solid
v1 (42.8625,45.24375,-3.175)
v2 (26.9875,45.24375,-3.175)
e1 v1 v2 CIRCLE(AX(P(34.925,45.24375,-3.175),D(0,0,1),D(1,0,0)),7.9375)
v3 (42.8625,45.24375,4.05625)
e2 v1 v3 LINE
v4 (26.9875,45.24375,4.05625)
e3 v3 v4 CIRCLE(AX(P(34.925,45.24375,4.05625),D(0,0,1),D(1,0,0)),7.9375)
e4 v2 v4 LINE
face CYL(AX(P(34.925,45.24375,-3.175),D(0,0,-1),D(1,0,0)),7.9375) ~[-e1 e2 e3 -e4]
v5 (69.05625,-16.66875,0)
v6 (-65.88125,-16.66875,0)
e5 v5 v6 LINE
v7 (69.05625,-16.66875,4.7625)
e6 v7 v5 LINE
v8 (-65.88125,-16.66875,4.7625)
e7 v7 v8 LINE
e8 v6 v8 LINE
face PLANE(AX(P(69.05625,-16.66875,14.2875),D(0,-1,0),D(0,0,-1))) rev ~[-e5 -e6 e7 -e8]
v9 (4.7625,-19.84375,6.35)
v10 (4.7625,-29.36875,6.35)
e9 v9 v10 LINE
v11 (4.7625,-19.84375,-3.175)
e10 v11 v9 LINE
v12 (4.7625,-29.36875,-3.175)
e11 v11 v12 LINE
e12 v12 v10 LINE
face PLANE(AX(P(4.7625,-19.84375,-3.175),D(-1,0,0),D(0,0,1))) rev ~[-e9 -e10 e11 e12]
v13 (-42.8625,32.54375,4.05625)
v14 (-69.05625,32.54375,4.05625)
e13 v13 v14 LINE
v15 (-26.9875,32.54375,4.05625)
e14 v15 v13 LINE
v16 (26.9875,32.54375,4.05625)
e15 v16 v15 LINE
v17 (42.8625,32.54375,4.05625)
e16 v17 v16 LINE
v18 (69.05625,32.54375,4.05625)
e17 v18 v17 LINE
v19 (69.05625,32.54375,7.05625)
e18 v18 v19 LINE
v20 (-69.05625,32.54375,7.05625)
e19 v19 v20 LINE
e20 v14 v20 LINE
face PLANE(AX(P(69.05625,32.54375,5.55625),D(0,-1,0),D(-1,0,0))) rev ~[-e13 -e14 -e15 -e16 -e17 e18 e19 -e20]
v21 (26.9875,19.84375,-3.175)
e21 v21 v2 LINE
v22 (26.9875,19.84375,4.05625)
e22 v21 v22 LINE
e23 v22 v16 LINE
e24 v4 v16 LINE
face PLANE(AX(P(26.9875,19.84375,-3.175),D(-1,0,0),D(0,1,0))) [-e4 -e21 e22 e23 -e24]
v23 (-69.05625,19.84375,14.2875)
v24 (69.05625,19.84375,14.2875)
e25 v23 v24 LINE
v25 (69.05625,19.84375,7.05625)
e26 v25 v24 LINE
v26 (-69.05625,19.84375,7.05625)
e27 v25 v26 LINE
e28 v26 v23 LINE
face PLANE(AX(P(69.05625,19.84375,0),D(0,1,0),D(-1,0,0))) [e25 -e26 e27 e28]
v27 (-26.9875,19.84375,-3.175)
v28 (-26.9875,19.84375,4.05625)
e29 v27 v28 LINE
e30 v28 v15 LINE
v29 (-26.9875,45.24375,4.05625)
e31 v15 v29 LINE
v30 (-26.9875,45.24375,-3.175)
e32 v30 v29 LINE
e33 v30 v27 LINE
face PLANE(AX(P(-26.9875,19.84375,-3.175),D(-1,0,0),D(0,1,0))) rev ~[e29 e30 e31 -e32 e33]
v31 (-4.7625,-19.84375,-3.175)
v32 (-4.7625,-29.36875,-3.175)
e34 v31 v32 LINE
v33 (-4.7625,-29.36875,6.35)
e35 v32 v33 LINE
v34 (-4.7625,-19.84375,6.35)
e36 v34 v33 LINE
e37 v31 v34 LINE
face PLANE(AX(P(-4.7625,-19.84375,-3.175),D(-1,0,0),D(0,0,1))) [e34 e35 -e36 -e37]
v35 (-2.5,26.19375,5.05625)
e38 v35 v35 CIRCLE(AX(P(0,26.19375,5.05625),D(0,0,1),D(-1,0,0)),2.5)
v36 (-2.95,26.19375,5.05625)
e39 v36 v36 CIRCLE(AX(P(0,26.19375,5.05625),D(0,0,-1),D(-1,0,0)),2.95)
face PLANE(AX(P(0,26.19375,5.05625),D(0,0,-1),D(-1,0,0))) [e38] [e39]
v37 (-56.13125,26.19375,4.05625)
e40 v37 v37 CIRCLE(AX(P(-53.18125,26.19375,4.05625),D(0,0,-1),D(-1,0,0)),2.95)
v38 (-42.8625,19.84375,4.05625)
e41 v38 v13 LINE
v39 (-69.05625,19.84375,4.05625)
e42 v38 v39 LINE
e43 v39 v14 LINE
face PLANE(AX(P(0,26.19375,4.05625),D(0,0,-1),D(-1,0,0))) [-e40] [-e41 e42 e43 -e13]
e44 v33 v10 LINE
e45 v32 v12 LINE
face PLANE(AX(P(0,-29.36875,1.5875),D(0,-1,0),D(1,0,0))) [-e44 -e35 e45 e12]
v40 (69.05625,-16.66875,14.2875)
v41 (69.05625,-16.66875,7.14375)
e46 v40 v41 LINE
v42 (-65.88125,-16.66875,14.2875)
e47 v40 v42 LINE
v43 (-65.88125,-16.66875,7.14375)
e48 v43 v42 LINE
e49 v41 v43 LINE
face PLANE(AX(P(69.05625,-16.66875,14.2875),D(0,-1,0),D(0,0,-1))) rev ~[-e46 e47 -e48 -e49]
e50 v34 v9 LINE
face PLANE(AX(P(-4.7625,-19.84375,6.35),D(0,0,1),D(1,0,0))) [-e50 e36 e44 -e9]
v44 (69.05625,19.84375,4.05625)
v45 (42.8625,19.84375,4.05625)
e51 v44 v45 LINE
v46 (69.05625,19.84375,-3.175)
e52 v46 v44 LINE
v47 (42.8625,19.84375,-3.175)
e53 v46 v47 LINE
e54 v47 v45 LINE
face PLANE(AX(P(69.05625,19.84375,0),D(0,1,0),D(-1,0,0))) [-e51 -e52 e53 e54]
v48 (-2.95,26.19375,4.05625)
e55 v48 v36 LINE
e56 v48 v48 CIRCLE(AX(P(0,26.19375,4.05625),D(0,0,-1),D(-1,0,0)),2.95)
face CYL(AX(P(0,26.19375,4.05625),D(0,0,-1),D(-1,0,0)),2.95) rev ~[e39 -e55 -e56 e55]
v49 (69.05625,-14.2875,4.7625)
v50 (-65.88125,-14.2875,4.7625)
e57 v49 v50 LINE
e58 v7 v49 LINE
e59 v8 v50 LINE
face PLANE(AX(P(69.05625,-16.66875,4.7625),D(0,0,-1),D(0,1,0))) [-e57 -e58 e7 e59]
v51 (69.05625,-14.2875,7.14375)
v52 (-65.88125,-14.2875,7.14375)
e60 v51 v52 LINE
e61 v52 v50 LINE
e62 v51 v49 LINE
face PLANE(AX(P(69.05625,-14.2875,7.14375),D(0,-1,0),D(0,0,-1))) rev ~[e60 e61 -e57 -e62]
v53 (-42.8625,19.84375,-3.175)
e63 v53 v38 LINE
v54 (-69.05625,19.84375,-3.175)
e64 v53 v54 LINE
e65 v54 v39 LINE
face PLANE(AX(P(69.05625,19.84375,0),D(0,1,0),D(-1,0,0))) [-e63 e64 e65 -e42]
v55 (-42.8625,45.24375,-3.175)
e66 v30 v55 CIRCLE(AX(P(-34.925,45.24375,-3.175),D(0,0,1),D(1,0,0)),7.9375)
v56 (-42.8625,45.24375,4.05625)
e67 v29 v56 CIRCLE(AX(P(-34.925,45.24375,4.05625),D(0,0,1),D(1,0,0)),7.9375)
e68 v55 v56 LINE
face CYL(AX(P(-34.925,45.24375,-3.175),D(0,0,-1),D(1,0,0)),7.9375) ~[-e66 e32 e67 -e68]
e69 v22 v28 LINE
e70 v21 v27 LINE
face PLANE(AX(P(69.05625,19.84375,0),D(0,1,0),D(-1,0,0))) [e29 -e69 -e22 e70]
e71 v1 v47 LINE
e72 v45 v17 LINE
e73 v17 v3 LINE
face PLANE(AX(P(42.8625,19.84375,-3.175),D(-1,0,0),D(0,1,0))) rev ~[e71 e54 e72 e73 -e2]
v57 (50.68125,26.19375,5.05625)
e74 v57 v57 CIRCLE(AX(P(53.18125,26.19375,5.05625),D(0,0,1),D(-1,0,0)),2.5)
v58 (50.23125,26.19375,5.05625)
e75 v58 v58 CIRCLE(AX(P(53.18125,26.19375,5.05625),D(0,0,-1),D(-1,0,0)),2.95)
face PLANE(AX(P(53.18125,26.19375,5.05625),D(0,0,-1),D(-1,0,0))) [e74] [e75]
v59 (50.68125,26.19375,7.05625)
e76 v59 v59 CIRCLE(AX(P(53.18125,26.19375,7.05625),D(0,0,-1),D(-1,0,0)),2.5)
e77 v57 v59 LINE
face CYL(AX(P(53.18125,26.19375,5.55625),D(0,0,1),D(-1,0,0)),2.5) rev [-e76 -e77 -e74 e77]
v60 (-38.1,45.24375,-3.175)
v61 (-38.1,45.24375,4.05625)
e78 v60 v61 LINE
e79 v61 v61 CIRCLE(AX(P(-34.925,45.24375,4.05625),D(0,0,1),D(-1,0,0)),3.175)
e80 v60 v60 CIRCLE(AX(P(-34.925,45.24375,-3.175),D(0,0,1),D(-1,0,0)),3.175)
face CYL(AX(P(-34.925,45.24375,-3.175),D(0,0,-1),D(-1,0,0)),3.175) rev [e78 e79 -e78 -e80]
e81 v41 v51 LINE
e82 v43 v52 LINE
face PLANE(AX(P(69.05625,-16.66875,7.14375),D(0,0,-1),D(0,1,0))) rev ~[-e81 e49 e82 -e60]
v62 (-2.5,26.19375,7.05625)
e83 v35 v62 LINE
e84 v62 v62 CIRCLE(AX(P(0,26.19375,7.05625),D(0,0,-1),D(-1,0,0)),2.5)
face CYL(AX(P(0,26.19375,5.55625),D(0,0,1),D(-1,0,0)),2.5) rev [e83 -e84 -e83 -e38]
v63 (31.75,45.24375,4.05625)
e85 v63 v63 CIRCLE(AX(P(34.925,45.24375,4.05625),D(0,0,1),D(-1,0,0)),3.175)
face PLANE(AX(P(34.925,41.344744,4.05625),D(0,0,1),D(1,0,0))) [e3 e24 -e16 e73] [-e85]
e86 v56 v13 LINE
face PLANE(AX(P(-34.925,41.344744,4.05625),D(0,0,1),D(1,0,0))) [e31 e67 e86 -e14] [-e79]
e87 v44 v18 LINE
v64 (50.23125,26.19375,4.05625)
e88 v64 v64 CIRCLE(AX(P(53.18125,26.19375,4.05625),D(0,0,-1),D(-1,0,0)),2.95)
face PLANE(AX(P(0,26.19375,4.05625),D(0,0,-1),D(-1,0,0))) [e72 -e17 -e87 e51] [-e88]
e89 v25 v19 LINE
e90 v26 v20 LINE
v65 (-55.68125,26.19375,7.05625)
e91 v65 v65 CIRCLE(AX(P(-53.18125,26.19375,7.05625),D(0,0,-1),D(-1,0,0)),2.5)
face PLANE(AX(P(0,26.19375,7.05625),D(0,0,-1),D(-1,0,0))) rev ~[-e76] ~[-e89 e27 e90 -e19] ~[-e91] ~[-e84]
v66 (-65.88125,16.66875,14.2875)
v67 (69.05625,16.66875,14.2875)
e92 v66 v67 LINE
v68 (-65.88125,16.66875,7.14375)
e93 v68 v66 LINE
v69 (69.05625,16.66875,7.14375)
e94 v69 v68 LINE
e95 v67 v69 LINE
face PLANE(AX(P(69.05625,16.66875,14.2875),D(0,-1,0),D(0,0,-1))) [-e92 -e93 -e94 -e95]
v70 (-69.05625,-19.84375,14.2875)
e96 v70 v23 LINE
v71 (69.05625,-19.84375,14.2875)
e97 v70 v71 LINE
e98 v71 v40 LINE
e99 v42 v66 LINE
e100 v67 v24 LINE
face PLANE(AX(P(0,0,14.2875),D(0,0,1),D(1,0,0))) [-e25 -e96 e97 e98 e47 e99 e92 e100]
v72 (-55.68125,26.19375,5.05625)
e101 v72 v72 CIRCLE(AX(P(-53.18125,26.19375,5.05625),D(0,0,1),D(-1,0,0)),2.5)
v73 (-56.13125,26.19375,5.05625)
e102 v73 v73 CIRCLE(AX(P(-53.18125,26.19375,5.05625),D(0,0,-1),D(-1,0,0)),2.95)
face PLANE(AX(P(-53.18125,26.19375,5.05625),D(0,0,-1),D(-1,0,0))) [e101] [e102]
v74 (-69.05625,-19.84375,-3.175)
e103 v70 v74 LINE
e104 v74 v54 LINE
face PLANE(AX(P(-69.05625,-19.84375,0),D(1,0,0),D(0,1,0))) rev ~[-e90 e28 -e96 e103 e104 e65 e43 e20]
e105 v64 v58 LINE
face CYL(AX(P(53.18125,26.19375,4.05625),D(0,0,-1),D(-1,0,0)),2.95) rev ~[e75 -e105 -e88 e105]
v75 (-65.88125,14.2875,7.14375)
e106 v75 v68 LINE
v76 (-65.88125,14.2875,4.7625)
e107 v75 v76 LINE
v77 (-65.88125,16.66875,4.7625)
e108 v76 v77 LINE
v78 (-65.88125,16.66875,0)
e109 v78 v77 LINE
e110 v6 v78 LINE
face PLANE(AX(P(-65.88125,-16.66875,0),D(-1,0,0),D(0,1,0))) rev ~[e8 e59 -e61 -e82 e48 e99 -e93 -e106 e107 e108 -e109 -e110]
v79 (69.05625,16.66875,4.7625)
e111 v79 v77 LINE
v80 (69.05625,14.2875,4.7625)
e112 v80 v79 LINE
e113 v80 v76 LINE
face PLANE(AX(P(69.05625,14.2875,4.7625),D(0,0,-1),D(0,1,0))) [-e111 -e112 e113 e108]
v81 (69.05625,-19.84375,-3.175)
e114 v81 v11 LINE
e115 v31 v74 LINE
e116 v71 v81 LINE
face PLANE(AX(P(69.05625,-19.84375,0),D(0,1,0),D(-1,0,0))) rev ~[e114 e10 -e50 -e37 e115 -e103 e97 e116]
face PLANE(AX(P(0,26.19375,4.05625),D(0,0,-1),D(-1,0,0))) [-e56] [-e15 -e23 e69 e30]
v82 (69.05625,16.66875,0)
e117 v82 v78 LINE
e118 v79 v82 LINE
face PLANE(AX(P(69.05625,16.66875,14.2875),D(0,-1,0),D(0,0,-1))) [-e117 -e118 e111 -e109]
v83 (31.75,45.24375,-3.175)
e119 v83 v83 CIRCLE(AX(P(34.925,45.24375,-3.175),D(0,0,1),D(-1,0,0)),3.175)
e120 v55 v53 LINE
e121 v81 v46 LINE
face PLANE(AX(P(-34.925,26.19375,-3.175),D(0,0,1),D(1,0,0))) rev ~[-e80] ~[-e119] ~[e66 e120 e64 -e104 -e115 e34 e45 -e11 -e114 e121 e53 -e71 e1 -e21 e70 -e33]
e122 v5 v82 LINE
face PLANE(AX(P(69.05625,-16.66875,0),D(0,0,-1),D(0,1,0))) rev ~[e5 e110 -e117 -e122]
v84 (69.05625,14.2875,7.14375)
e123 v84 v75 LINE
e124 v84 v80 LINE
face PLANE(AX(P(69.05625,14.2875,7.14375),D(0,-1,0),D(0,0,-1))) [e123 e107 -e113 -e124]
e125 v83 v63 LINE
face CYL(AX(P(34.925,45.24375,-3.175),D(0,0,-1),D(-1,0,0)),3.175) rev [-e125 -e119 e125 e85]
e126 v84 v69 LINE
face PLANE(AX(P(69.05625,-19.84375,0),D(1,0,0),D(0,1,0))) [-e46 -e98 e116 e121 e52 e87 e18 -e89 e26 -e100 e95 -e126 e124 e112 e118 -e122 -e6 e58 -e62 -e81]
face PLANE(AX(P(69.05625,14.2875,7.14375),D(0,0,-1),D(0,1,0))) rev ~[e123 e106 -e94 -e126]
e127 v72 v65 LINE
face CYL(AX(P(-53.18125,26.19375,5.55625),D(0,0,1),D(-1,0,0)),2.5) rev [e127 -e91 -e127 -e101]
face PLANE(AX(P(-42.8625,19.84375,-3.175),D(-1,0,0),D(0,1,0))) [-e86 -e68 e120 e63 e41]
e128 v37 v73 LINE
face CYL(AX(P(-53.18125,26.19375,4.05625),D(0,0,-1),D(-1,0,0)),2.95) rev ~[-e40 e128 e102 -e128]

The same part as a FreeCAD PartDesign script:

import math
import FreeCAD as App
import Part
import Sketcher

V = App.Vector
Q = App.Units.Quantity


def add_polygon(sketch, points):
    """Adds a closed chain of lines whose ends are joined by coincident constraints."""
    first, n = sketch.GeometryCount, len(points)
    for a, b in zip(points, points[1:] + points[:1]):
        sketch.addGeometry(Part.LineSegment(App.Vector(*a, 0), App.Vector(*b, 0)), False)
    for i in range(n):
        sketch.addConstraint(Sketcher.Constraint("Coincident", first + i, 2, first + (i + 1) % n, 1))

doc = App.newDocument("Part")
body = doc.addObject("PartDesign::Body", "Body")

# Sketch on XY plane
sketch1 = body.newObject("Sketcher::SketchObject", "Sketch")
sketch1.AttachmentSupport = (doc.getObject("XY_Plane"), [""])
sketch1.MapMode = "FlatFace"
add_polygon(sketch1, [(-69, 20), (-69, -20), (69, -20), (69, 20)])  # lines 0-3
add_polygon(sketch1, [(66, -17), (-66, -17), (-66, 17), (66, 17)])  # lines 4-7
sketch1.addConstraint([
    Sketcher.Constraint("Vertical", 0),
    Sketcher.Constraint("Horizontal", 1),
    Sketcher.Constraint("Vertical", 2),
    Sketcher.Constraint("Horizontal", 3),
    Sketcher.Constraint("Horizontal", 4),
    Sketcher.Constraint("Vertical", 5),
    Sketcher.Constraint("Horizontal", 6),
    Sketcher.Constraint("Vertical", 7),
    Sketcher.Constraint("Symmetric", 0, 2, 2, 2, -1, 1),
    Sketcher.Constraint("Symmetric", 4, 2, 6, 2, -1, 1),
    Sketcher.Constraint("DistanceX", 1, 1, 1, 2, Q("5.4375 in")),
    Sketcher.Constraint("DistanceX", 4, 2, 4, 1, Q("5.1875 in")),
    Sketcher.Constraint("DistanceY", 0, 2, 0, 1, Q("1.5625 in")),
    Sketcher.Constraint("DistanceY", 5, 1, 5, 2, Q("1.3125 in")),
])
pad1 = body.newObject("PartDesign::Pad", "Pad")
pad1.Profile = sketch1
pad1.Length = Q("0.5625 in")

# Sketch on XY plane
sketch2 = body.newObject("Sketcher::SketchObject", "Sketch001")
sketch2.AttachmentSupport = (doc.getObject("XY_Plane"), [""])
sketch2.MapMode = "FlatFace"
add_polygon(sketch2, [(69, 20), (69, -20), (-69, -20), (-69, 20)])  # lines 0-3
sketch2.addConstraint([
    Sketcher.Constraint("Vertical", 0),
    Sketcher.Constraint("Horizontal", 1),
    Sketcher.Constraint("Vertical", 2),
    Sketcher.Constraint("Horizontal", 3),
    Sketcher.Constraint("Symmetric", 0, 2, 2, 2, -1, 1),
    Sketcher.Constraint("DistanceX", 1, 2, 1, 1, Q("5.4375 in")),
    Sketcher.Constraint("DistanceY", 0, 2, 0, 1, Q("1.5625 in")),
])
pad2 = body.newObject("PartDesign::Pad", "Pad001")
pad2.Profile = sketch2
pad2.Length = Q("0.125 in")
pad2.Reversed = True

# Sketch on YZ plane
sketch3 = body.newObject("Sketcher::SketchObject", "Sketch002")
sketch3.AttachmentSupport = (doc.getObject("YZ_Plane"), [""])
sketch3.MapMode = "FlatFace"
sketch3.AttachmentOffset = App.Placement(V(0, 0, 2.71875 * 25.4), App.Rotation())
add_polygon(sketch3, [(17, 14), (-17, 14), (-17, 0), (17, 0)])  # lines 0-3
sketch3.addConstraint([
    Sketcher.Constraint("Horizontal", 0),
    Sketcher.Constraint("Vertical", 1),
    Sketcher.Constraint("Horizontal", 2),
    Sketcher.Constraint("Vertical", 3),
    Sketcher.Constraint("Symmetric", 1, 2, 2, 2, -1, 1),
    Sketcher.Constraint("DistanceX", 0, 2, 0, 1, Q("1.3125 in")),
    Sketcher.Constraint("DistanceY", 1, 2, 1, 1, Q("0.5625 in")),
])
pocket1 = body.newObject("PartDesign::Pocket", "Pocket")
pocket1.Profile = sketch3
pocket1.Type = "UpToFirst"

# Sketch on YZ plane
sketch4 = body.newObject("Sketcher::SketchObject", "Sketch003")
sketch4.AttachmentSupport = (doc.getObject("YZ_Plane"), [""])
sketch4.MapMode = "FlatFace"
sketch4.AttachmentOffset = App.Placement(V(0, 0, 2.71875 * 25.4), App.Rotation())
add_polygon(sketch4, [(-14.3, 7.1), (-16.7, 7.1), (-16.7, 4.8), (-14.3, 4.8)])  # lines 0-3
sketch4.addConstraint([
    Sketcher.Constraint("Horizontal", 0),
    Sketcher.Constraint("Vertical", 1),
    Sketcher.Constraint("Horizontal", 2),
    Sketcher.Constraint("Vertical", 3),
    Sketcher.Constraint("Equal", 2, 1),
    Sketcher.Constraint("DistanceX", 0, 2, 0, 1, Q("0.09375 in")),
    Sketcher.Constraint("DistanceX", 0, 2, -1, 1, Q("0.65625 in")),
    Sketcher.Constraint("DistanceY", -1, 1, 0, 2, Q("0.28125 in")),
])
pad3 = body.newObject("PartDesign::Pad", "Pad002")
pad3.Profile = sketch4
pad3.Type = "UpToFirst"
pad3.Reversed = True

# Sketch on YZ plane
sketch5 = body.newObject("Sketcher::SketchObject", "Sketch004")
sketch5.AttachmentSupport = (doc.getObject("YZ_Plane"), [""])
sketch5.MapMode = "FlatFace"
sketch5.AttachmentOffset = App.Placement(V(0, 0, 2.71875 * 25.4), App.Rotation())
add_polygon(sketch5, [(16.7, 7.1), (14.3, 7.1), (14.3, 4.8), (16.7, 4.8)])  # lines 0-3
sketch5.addConstraint([
    Sketcher.Constraint("Horizontal", 0),
    Sketcher.Constraint("Vertical", 1),
    Sketcher.Constraint("Horizontal", 2),
    Sketcher.Constraint("Vertical", 3),
    Sketcher.Constraint("Equal", 2, 1),
    Sketcher.Constraint("DistanceX", 0, 2, 0, 1, Q("0.09375 in")),
    Sketcher.Constraint("DistanceX", -1, 1, 0, 2, Q("0.5625 in")),
    Sketcher.Constraint("DistanceY", -1, 1, 0, 2, Q("0.28125 in")),
])
pad4 = body.newObject("PartDesign::Pad", "Pad003")
pad4.Profile = sketch5
pad4.Type = "UpToFirst"
pad4.Reversed = True

# Sketch on XY plane
sketch6 = body.newObject("Sketcher::SketchObject", "Sketch005")
sketch6.AttachmentSupport = (doc.getObject("XY_Plane"), [""])
sketch6.MapMode = "FlatFace"
sketch6.AttachmentOffset = App.Placement(V(0, 0, 0.21875 * 25.4), App.Rotation())
add_polygon(sketch6, [(69.1, 32.5), (69.1, 19.8), (-69.1, 19.8), (-69.1, 32.5)])  # lines 0-3
sketch6.addGeometry(Part.Circle(V(53.2, 26.2, 0), V(0, 0, 1), 2.5), False)  # 4
sketch6.addGeometry(Part.Circle(V(0, 26.2, 0), V(0, 0, 1), 2.5), False)  # 5
sketch6.addGeometry(Part.Circle(V(-53.2, 26.2, 0), V(0, 0, 1), 2.5), False)  # 6
sketch6.addConstraint([
    Sketcher.Constraint("Vertical", 0),
    Sketcher.Constraint("Horizontal", 1),
    Sketcher.Constraint("Vertical", 2),
    Sketcher.Constraint("Horizontal", 3),
    Sketcher.Constraint("Equal", 4, 5),
    Sketcher.Constraint("Equal", 5, 6),
    Sketcher.Constraint("Symmetric", 4, 3, 6, 3, -2),
    Sketcher.Constraint("PointOnObject", 5, 3, -2),
    Sketcher.Constraint("Horizontal", 4, 3, 5, 3),
    Sketcher.Constraint("DistanceY", 0, 2, 0, 1, Q("0.5 in")),
    Sketcher.Constraint("Diameter", 4, 5.0),
    Sketcher.Constraint("DistanceX", 1, 2, 1, 1, Q("5.4375 in")),
    Sketcher.Constraint("DistanceY", 0, 2, 4, 3, Q("0.25 in")),
    Sketcher.Constraint("DistanceX", -1, 1, 4, 3, Q("2.09375 in")),
    Sketcher.Constraint("DistanceY", -1, 1, 4, 3, Q("1.03125 in")),
    Sketcher.Constraint("DistanceX", -1, 1, 0, 2, Q("2.71875 in")),
])
pad5 = body.newObject("PartDesign::Pad", "Pad004")
pad5.Profile = sketch6
pad5.Length = 3
pad5.Midplane = True

# Sketch on XY plane
sketch7 = body.newObject("Sketcher::SketchObject", "Sketch006")
sketch7.AttachmentSupport = (doc.getObject("XY_Plane"), [""])
sketch7.MapMode = "FlatFace"
sketch7.AttachmentOffset = App.Placement(V(0, 0, 4.05625), App.Rotation())
sketch7.addGeometry([
    Part.Circle(V(53.2, 26.2, 0), V(0, 0, 1), 3),
    Part.Circle(V(0, 26.2, 0), V(0, 0, 1), 3),
    Part.Circle(V(-53.2, 26.2, 0), V(0, 0, 1), 3),
], False)
sketch7.addConstraint([
    Sketcher.Constraint("Equal", 0, 1),
    Sketcher.Constraint("Equal", 1, 2),
    Sketcher.Constraint("Symmetric", 0, 3, 2, 3, -2),
    Sketcher.Constraint("PointOnObject", 1, 3, -2),
    Sketcher.Constraint("Horizontal", 0, 3, 1, 3),
    Sketcher.Constraint("Diameter", 0, 5.9),
    Sketcher.Constraint("DistanceX", -1, 1, 0, 3, Q("2.09375 in")),
    Sketcher.Constraint("DistanceY", -1, 1, 0, 3, Q("1.03125 in")),
])
pocket2 = body.newObject("PartDesign::Pocket", "Pocket001")
pocket2.Profile = sketch7
pocket2.Length = 1
pocket2.Reversed = True

# Sketch on XZ plane
sketch8 = body.newObject("Sketcher::SketchObject", "Sketch007")
sketch8.AttachmentSupport = (doc.getObject("XZ_Plane"), [""])
sketch8.MapMode = "FlatFace"
sketch8.AttachmentOffset = App.Placement(V(0, 0, 0.78125 * 25.4), App.Rotation())
add_polygon(sketch8, [(-5, 6), (-5, -3), (5, -3), (5, 6)])  # lines 0-3
sketch8.addConstraint([
    Sketcher.Constraint("Vertical", 0),
    Sketcher.Constraint("Horizontal", 1),
    Sketcher.Constraint("Vertical", 2),
    Sketcher.Constraint("Horizontal", 3),
    Sketcher.Constraint("Equal", 3, 0),
    Sketcher.Constraint("DistanceX", 1, 1, 1, 2, Q("0.375 in")),
    Sketcher.Constraint("DistanceY", -1, 1, 2, 2, Q("0.25 in")),
    Sketcher.Constraint("DistanceX", 0, 2, -1, 1, Q("0.1875 in")),
])
pad6 = body.newObject("PartDesign::Pad", "Pad005")
pad6.Profile = sketch8
pad6.Length = Q("0.375 in")

# Sketch on XY plane
sketch9 = body.newObject("Sketcher::SketchObject", "Sketch008")
sketch9.AttachmentSupport = (doc.getObject("XY_Plane"), [""])
sketch9.MapMode = "FlatFace"
sketch9.AttachmentOffset = App.Placement(V(0, 0, -0.125 * 25.4), App.Rotation())
sketch9.addGeometry([
    Part.LineSegment(V(-42.9, 19.8, 0), V(-27, 19.8, 0)),  # 0
    Part.LineSegment(V(-27, 19.8, 0), V(-27, 45.2, 0)),  # 1
    Part.ArcOfCircle(Part.Circle(V(-34.9, 45.2, 0), V(0, 0, 1), 7.9), math.radians(0), math.radians(180)),  # 2
    Part.LineSegment(V(-42.9, 45.2, 0), V(-42.9, 19.8, 0)),  # 3
    Part.Circle(V(-34.9, 45.2, 0), V(0, 0, 1), 3.2),  # 4
    Part.LineSegment(V(27, 19.8, 0), V(42.9, 19.8, 0)),  # 5
    Part.LineSegment(V(42.9, 19.8, 0), V(42.9, 45.2, 0)),  # 6
    Part.ArcOfCircle(Part.Circle(V(34.9, 45.2, 0), V(0, 0, 1), 7.9), math.radians(0), math.radians(180)),  # 7
    Part.LineSegment(V(27, 45.2, 0), V(27, 19.8, 0)),  # 8
    Part.Circle(V(34.9, 45.2, 0), V(0, 0, 1), 3.2),  # 9
], False)
sketch9.addConstraint([
    Sketcher.Constraint("Coincident", 0, 2, 1, 1),
    Sketcher.Constraint("Tangent", 1, 2, 2, 1),
    Sketcher.Constraint("Tangent", 2, 2, 3, 1),
    Sketcher.Constraint("Coincident", 3, 2, 0, 1),
    Sketcher.Constraint("Coincident", 5, 2, 6, 1),
    Sketcher.Constraint("Tangent", 6, 2, 7, 1),
    Sketcher.Constraint("Tangent", 7, 2, 8, 1),
    Sketcher.Constraint("Coincident", 8, 2, 5, 1),
    Sketcher.Constraint("Horizontal", 0),
    Sketcher.Constraint("Vertical", 1),
    Sketcher.Constraint("Vertical", 3),
    Sketcher.Constraint("Horizontal", 5),
    Sketcher.Constraint("Vertical", 6),
    Sketcher.Constraint("Vertical", 8),
    Sketcher.Constraint("Coincident", 4, 3, 2, 3),
    Sketcher.Constraint("Coincident", 9, 3, 7, 3),
    Sketcher.Constraint("Equal", 2, 7),
    Sketcher.Constraint("Equal", 4, 9),
    Sketcher.Constraint("Symmetric", 2, 3, 7, 3, -2),
    Sketcher.Constraint("Horizontal", 3, 2, 5, 2),
    Sketcher.Constraint("Diameter", 4, Q("0.25 in")),
    Sketcher.Constraint("DistanceY", 1, 1, 1, 2, Q("1 in")),
    Sketcher.Constraint("Radius", 2, Q("0.3125 in")),
    Sketcher.Constraint("DistanceX", 2, 3, 7, 3, Q("2.75 in")),
    Sketcher.Constraint("DistanceY", -1, 1, 2, 3, Q("1.78125 in")),
])
pad7 = body.newObject("PartDesign::Pad", "Pad006")
pad7.Profile = sketch9
pad7.Length = 7.23125

doc.recompute()
